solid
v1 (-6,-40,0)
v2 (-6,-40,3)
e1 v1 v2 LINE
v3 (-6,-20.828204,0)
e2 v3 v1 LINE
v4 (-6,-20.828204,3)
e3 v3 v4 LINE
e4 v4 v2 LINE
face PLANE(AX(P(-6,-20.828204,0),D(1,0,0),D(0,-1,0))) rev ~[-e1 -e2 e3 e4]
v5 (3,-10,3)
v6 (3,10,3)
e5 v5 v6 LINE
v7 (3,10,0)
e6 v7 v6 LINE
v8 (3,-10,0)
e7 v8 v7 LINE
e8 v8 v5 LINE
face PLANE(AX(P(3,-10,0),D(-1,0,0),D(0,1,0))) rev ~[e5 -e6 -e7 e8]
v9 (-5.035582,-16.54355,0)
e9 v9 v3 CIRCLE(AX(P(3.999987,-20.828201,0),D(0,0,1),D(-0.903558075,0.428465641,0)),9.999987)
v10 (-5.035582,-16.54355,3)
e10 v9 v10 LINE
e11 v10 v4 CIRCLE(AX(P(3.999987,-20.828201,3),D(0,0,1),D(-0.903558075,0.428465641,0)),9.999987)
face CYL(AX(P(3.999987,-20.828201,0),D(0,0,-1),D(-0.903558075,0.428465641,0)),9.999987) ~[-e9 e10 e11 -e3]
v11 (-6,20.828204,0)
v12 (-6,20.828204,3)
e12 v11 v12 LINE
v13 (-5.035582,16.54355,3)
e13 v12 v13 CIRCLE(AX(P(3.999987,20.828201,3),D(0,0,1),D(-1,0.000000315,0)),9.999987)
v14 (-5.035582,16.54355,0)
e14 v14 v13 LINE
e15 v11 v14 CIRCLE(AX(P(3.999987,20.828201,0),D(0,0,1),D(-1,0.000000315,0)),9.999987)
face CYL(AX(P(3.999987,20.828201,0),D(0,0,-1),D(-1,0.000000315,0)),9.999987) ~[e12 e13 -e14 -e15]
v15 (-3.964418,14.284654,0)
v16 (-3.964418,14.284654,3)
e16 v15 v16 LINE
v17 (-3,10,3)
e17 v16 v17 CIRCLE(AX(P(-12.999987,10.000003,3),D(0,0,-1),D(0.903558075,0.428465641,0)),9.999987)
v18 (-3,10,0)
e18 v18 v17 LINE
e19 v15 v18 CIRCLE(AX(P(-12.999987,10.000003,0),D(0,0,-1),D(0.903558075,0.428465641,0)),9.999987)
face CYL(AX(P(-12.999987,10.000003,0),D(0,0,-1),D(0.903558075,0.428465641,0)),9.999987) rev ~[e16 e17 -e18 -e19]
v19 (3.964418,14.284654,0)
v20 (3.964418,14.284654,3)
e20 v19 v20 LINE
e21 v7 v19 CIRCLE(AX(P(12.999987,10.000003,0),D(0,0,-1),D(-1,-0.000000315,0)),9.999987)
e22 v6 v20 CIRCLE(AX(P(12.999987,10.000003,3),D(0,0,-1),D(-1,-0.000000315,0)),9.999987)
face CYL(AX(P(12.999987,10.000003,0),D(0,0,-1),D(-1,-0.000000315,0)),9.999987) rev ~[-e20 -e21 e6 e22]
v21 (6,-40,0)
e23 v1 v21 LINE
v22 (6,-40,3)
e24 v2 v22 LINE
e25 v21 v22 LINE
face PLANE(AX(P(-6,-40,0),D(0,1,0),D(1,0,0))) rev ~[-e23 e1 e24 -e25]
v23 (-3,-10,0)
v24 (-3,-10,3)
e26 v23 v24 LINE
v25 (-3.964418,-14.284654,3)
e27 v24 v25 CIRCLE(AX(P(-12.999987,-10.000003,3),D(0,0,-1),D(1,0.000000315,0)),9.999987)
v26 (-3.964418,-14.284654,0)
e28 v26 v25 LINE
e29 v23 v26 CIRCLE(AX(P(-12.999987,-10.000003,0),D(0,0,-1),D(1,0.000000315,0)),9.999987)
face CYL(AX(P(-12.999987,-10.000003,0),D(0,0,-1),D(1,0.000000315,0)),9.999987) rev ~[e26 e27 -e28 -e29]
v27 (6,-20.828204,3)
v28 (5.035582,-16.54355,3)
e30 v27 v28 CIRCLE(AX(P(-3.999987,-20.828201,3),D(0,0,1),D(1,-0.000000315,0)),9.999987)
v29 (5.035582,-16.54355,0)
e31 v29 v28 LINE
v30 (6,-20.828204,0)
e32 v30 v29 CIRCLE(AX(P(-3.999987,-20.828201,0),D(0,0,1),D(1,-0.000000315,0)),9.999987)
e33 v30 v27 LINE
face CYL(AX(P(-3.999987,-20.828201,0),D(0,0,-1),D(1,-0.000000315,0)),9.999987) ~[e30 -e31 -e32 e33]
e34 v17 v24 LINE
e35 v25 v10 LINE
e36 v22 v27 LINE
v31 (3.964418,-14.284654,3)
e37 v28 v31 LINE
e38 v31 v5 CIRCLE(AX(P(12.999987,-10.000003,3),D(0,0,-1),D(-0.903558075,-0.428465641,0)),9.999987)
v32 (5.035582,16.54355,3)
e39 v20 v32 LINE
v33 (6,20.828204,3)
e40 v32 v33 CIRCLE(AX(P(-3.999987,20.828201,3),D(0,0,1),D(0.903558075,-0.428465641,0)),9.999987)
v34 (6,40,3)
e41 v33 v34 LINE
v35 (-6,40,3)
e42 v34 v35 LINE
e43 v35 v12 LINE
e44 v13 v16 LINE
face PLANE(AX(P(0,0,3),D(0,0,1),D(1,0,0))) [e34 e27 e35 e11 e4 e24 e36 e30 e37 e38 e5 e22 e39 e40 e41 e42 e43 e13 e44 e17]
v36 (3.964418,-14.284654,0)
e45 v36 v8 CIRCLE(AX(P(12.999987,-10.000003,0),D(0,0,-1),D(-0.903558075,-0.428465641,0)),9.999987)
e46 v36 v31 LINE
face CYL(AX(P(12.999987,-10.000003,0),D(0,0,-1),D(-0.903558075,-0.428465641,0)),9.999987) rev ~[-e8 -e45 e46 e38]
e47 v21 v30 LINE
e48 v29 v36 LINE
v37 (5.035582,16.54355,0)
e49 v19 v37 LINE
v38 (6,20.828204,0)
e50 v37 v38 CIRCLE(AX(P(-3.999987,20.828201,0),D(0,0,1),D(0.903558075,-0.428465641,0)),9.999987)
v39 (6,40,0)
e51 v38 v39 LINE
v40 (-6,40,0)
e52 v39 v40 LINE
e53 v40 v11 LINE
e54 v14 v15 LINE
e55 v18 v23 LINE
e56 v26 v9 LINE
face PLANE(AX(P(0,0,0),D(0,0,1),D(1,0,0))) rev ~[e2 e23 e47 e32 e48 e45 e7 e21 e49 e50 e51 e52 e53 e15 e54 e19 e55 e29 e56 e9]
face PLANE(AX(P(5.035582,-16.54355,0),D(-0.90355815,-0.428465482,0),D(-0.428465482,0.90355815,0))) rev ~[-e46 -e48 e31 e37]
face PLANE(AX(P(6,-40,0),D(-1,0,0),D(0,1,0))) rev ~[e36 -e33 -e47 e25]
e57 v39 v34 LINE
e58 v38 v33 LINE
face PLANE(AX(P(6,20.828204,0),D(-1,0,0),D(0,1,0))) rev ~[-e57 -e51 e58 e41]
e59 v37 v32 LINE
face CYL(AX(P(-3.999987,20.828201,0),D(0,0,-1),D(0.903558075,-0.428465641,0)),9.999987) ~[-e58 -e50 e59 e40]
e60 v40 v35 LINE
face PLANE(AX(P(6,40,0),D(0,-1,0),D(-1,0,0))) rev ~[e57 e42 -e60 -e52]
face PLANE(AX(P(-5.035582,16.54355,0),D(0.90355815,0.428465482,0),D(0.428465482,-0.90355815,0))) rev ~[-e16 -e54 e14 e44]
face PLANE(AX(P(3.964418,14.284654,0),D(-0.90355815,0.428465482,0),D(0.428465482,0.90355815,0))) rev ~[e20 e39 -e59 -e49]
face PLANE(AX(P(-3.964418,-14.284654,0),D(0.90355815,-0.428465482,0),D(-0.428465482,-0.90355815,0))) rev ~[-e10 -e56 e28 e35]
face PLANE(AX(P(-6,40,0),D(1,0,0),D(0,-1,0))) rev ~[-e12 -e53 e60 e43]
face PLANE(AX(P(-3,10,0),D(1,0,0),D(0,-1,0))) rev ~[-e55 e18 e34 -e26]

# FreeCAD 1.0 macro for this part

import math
import FreeCAD as App
import Part
import Sketcher

V = App.Vector

doc = App.newDocument("Part")
body = doc.addObject("PartDesign::Body", "Body")

# Sketch on XY plane
sketch1 = body.newObject("Sketcher::SketchObject", "Sketch")
sketch1.AttachmentSupport = (doc.getObject("XY_Plane"), [""])
sketch1.MapMode = "FlatFace"
sketch1.addGeometry([
    Part.LineSegment(V(3, -10, 0), V(3, 10, 0)),  # 0
    Part.ArcOfCircle(Part.Circle(V(13, 10, 0), V(0, 0, 1), 10), math.radians(155), math.radians(180)),  # 1
    Part.LineSegment(V(4, 14.3, 0), V(5, 16.5, 0)),  # 2
    Part.ArcOfCircle(Part.Circle(V(-4, 20.8, 0), V(0, 0, 1), 10), math.radians(-25), math.radians(0)),  # 3
    Part.LineSegment(V(6, 20.8, 0), V(6, 40, 0)),  # 4
    Part.LineSegment(V(6, 40, 0), V(-6, 40, 0)),  # 5
    Part.LineSegment(V(-6, 40, 0), V(-6, 20.8, 0)),  # 6
    Part.ArcOfCircle(Part.Circle(V(4, 20.8, 0), V(0, 0, 1), 10), math.radians(180), math.radians(205)),  # 7
    Part.LineSegment(V(-5, 16.5, 0), V(-4, 14.3, 0)),  # 8
    Part.ArcOfCircle(Part.Circle(V(-13, 10, 0), V(0, 0, 1), 10), math.radians(0), math.radians(25)),  # 9
    Part.LineSegment(V(-3, 10, 0), V(-3, -10, 0)),  # 10
    Part.ArcOfCircle(Part.Circle(V(-13, -10, 0), V(0, 0, 1), 10), math.radians(-25), math.radians(0)),  # 11
    Part.LineSegment(V(-4, -14.3, 0), V(-5, -16.5, 0)),  # 12
    Part.ArcOfCircle(Part.Circle(V(4, -20.8, 0), V(0, 0, 1), 10), math.radians(155), math.radians(180)),  # 13
    Part.LineSegment(V(-6, -20.8, 0), V(-6, -40, 0)),  # 14
    Part.LineSegment(V(-6, -40, 0), V(6, -40, 0)),  # 15
    Part.LineSegment(V(6, -40, 0), V(6, -20.8, 0)),  # 16
    Part.ArcOfCircle(Part.Circle(V(-4, -20.8, 0), V(0, 0, 1), 10), math.radians(0), math.radians(25)),  # 17
    Part.LineSegment(V(5, -16.5, 0), V(4, -14.3, 0)),  # 18
    Part.ArcOfCircle(Part.Circle(V(13, -10, 0), V(0, 0, 1), 10), math.radians(180), math.radians(205)),  # 19
], False)
sketch1.addConstraint([
    Sketcher.Constraint("Tangent", 0, 2, 1, 2),
    Sketcher.Constraint("Tangent", 1, 1, 2, 1),
    Sketcher.Constraint("Tangent", 2, 2, 3, 1),
    Sketcher.Constraint("Tangent", 3, 2, 4, 1),
    Sketcher.Constraint("Coincident", 4, 2, 5, 1),
    Sketcher.Constraint("Coincident", 5, 2, 6, 1),
    Sketcher.Constraint("Tangent", 6, 2, 7, 1),
    Sketcher.Constraint("Tangent", 7, 2, 8, 1),
    Sketcher.Constraint("Tangent", 8, 2, 9, 2),
    Sketcher.Constraint("Tangent", 9, 1, 10, 1),
    Sketcher.Constraint("Tangent", 10, 2, 11, 2),
    Sketcher.Constraint("Tangent", 11, 1, 12, 1),
    Sketcher.Constraint("Tangent", 12, 2, 13, 1),
    Sketcher.Constraint("Tangent", 13, 2, 14, 1),
    Sketcher.Constraint("Coincident", 14, 2, 15, 1),
    Sketcher.Constraint("Coincident", 15, 2, 16, 1),
    Sketcher.Constraint("Tangent", 16, 2, 17, 1),
    Sketcher.Constraint("Tangent", 17, 2, 18, 1),
    Sketcher.Constraint("Tangent", 18, 2, 19, 2),
    Sketcher.Constraint("Tangent", 19, 1, 0, 1),
    Sketcher.Constraint("Vertical", 0),
    Sketcher.Constraint("Vertical", 4),
    Sketcher.Constraint("Horizontal", 5),
    Sketcher.Constraint("Vertical", 6),
    Sketcher.Constraint("Vertical", 10),
    Sketcher.Constraint("Vertical", 14),
    Sketcher.Constraint("Horizontal", 15),
    Sketcher.Constraint("Vertical", 16),
    Sketcher.Constraint("Equal", 1, 3),
    Sketcher.Constraint("Equal", 3, 7),
    Sketcher.Constraint("Equal", 7, 9),
    Sketcher.Constraint("Equal", 9, 11),
    Sketcher.Constraint("Equal", 11, 13),
    Sketcher.Constraint("Equal", 13, 17),
    Sketcher.Constraint("Equal", 17, 19),
    Sketcher.Constraint("Symmetric", 1, 3, 11, 3, -1, 1),
    Sketcher.Constraint("Symmetric", 3, 3, 13, 3, -1, 1),
    Sketcher.Constraint("Symmetric", 7, 3, 17, 3, -1, 1),
    Sketcher.Constraint("Symmetric", 3, 3, 7, 3, -2),
    Sketcher.Constraint("Parallel", 8, 18),
    Sketcher.Constraint("Horizontal", 1, 3, 9, 3),
    Sketcher.Constraint("Equal", 6, 14),
    Sketcher.Constraint("DistanceX", 5, 2, 5, 1, 12.0),
    Sketcher.Constraint("DistanceY", 0, 1, 0, 2, 20.0),
    Sketcher.Constraint("DistanceX", -1, 1, 0, 2, 3.0),
    Sketcher.Constraint("DistanceY", -1, 1, 4, 2, 40.0),
    Sketcher.Constraint("Distance", 2, 2.500001),
    Sketcher.Constraint("Radius", 1, 9.999987),
])
pad1 = body.newObject("PartDesign::Pad", "Pad")
pad1.Profile = sketch1
pad1.Length = 3

doc.recompute()
